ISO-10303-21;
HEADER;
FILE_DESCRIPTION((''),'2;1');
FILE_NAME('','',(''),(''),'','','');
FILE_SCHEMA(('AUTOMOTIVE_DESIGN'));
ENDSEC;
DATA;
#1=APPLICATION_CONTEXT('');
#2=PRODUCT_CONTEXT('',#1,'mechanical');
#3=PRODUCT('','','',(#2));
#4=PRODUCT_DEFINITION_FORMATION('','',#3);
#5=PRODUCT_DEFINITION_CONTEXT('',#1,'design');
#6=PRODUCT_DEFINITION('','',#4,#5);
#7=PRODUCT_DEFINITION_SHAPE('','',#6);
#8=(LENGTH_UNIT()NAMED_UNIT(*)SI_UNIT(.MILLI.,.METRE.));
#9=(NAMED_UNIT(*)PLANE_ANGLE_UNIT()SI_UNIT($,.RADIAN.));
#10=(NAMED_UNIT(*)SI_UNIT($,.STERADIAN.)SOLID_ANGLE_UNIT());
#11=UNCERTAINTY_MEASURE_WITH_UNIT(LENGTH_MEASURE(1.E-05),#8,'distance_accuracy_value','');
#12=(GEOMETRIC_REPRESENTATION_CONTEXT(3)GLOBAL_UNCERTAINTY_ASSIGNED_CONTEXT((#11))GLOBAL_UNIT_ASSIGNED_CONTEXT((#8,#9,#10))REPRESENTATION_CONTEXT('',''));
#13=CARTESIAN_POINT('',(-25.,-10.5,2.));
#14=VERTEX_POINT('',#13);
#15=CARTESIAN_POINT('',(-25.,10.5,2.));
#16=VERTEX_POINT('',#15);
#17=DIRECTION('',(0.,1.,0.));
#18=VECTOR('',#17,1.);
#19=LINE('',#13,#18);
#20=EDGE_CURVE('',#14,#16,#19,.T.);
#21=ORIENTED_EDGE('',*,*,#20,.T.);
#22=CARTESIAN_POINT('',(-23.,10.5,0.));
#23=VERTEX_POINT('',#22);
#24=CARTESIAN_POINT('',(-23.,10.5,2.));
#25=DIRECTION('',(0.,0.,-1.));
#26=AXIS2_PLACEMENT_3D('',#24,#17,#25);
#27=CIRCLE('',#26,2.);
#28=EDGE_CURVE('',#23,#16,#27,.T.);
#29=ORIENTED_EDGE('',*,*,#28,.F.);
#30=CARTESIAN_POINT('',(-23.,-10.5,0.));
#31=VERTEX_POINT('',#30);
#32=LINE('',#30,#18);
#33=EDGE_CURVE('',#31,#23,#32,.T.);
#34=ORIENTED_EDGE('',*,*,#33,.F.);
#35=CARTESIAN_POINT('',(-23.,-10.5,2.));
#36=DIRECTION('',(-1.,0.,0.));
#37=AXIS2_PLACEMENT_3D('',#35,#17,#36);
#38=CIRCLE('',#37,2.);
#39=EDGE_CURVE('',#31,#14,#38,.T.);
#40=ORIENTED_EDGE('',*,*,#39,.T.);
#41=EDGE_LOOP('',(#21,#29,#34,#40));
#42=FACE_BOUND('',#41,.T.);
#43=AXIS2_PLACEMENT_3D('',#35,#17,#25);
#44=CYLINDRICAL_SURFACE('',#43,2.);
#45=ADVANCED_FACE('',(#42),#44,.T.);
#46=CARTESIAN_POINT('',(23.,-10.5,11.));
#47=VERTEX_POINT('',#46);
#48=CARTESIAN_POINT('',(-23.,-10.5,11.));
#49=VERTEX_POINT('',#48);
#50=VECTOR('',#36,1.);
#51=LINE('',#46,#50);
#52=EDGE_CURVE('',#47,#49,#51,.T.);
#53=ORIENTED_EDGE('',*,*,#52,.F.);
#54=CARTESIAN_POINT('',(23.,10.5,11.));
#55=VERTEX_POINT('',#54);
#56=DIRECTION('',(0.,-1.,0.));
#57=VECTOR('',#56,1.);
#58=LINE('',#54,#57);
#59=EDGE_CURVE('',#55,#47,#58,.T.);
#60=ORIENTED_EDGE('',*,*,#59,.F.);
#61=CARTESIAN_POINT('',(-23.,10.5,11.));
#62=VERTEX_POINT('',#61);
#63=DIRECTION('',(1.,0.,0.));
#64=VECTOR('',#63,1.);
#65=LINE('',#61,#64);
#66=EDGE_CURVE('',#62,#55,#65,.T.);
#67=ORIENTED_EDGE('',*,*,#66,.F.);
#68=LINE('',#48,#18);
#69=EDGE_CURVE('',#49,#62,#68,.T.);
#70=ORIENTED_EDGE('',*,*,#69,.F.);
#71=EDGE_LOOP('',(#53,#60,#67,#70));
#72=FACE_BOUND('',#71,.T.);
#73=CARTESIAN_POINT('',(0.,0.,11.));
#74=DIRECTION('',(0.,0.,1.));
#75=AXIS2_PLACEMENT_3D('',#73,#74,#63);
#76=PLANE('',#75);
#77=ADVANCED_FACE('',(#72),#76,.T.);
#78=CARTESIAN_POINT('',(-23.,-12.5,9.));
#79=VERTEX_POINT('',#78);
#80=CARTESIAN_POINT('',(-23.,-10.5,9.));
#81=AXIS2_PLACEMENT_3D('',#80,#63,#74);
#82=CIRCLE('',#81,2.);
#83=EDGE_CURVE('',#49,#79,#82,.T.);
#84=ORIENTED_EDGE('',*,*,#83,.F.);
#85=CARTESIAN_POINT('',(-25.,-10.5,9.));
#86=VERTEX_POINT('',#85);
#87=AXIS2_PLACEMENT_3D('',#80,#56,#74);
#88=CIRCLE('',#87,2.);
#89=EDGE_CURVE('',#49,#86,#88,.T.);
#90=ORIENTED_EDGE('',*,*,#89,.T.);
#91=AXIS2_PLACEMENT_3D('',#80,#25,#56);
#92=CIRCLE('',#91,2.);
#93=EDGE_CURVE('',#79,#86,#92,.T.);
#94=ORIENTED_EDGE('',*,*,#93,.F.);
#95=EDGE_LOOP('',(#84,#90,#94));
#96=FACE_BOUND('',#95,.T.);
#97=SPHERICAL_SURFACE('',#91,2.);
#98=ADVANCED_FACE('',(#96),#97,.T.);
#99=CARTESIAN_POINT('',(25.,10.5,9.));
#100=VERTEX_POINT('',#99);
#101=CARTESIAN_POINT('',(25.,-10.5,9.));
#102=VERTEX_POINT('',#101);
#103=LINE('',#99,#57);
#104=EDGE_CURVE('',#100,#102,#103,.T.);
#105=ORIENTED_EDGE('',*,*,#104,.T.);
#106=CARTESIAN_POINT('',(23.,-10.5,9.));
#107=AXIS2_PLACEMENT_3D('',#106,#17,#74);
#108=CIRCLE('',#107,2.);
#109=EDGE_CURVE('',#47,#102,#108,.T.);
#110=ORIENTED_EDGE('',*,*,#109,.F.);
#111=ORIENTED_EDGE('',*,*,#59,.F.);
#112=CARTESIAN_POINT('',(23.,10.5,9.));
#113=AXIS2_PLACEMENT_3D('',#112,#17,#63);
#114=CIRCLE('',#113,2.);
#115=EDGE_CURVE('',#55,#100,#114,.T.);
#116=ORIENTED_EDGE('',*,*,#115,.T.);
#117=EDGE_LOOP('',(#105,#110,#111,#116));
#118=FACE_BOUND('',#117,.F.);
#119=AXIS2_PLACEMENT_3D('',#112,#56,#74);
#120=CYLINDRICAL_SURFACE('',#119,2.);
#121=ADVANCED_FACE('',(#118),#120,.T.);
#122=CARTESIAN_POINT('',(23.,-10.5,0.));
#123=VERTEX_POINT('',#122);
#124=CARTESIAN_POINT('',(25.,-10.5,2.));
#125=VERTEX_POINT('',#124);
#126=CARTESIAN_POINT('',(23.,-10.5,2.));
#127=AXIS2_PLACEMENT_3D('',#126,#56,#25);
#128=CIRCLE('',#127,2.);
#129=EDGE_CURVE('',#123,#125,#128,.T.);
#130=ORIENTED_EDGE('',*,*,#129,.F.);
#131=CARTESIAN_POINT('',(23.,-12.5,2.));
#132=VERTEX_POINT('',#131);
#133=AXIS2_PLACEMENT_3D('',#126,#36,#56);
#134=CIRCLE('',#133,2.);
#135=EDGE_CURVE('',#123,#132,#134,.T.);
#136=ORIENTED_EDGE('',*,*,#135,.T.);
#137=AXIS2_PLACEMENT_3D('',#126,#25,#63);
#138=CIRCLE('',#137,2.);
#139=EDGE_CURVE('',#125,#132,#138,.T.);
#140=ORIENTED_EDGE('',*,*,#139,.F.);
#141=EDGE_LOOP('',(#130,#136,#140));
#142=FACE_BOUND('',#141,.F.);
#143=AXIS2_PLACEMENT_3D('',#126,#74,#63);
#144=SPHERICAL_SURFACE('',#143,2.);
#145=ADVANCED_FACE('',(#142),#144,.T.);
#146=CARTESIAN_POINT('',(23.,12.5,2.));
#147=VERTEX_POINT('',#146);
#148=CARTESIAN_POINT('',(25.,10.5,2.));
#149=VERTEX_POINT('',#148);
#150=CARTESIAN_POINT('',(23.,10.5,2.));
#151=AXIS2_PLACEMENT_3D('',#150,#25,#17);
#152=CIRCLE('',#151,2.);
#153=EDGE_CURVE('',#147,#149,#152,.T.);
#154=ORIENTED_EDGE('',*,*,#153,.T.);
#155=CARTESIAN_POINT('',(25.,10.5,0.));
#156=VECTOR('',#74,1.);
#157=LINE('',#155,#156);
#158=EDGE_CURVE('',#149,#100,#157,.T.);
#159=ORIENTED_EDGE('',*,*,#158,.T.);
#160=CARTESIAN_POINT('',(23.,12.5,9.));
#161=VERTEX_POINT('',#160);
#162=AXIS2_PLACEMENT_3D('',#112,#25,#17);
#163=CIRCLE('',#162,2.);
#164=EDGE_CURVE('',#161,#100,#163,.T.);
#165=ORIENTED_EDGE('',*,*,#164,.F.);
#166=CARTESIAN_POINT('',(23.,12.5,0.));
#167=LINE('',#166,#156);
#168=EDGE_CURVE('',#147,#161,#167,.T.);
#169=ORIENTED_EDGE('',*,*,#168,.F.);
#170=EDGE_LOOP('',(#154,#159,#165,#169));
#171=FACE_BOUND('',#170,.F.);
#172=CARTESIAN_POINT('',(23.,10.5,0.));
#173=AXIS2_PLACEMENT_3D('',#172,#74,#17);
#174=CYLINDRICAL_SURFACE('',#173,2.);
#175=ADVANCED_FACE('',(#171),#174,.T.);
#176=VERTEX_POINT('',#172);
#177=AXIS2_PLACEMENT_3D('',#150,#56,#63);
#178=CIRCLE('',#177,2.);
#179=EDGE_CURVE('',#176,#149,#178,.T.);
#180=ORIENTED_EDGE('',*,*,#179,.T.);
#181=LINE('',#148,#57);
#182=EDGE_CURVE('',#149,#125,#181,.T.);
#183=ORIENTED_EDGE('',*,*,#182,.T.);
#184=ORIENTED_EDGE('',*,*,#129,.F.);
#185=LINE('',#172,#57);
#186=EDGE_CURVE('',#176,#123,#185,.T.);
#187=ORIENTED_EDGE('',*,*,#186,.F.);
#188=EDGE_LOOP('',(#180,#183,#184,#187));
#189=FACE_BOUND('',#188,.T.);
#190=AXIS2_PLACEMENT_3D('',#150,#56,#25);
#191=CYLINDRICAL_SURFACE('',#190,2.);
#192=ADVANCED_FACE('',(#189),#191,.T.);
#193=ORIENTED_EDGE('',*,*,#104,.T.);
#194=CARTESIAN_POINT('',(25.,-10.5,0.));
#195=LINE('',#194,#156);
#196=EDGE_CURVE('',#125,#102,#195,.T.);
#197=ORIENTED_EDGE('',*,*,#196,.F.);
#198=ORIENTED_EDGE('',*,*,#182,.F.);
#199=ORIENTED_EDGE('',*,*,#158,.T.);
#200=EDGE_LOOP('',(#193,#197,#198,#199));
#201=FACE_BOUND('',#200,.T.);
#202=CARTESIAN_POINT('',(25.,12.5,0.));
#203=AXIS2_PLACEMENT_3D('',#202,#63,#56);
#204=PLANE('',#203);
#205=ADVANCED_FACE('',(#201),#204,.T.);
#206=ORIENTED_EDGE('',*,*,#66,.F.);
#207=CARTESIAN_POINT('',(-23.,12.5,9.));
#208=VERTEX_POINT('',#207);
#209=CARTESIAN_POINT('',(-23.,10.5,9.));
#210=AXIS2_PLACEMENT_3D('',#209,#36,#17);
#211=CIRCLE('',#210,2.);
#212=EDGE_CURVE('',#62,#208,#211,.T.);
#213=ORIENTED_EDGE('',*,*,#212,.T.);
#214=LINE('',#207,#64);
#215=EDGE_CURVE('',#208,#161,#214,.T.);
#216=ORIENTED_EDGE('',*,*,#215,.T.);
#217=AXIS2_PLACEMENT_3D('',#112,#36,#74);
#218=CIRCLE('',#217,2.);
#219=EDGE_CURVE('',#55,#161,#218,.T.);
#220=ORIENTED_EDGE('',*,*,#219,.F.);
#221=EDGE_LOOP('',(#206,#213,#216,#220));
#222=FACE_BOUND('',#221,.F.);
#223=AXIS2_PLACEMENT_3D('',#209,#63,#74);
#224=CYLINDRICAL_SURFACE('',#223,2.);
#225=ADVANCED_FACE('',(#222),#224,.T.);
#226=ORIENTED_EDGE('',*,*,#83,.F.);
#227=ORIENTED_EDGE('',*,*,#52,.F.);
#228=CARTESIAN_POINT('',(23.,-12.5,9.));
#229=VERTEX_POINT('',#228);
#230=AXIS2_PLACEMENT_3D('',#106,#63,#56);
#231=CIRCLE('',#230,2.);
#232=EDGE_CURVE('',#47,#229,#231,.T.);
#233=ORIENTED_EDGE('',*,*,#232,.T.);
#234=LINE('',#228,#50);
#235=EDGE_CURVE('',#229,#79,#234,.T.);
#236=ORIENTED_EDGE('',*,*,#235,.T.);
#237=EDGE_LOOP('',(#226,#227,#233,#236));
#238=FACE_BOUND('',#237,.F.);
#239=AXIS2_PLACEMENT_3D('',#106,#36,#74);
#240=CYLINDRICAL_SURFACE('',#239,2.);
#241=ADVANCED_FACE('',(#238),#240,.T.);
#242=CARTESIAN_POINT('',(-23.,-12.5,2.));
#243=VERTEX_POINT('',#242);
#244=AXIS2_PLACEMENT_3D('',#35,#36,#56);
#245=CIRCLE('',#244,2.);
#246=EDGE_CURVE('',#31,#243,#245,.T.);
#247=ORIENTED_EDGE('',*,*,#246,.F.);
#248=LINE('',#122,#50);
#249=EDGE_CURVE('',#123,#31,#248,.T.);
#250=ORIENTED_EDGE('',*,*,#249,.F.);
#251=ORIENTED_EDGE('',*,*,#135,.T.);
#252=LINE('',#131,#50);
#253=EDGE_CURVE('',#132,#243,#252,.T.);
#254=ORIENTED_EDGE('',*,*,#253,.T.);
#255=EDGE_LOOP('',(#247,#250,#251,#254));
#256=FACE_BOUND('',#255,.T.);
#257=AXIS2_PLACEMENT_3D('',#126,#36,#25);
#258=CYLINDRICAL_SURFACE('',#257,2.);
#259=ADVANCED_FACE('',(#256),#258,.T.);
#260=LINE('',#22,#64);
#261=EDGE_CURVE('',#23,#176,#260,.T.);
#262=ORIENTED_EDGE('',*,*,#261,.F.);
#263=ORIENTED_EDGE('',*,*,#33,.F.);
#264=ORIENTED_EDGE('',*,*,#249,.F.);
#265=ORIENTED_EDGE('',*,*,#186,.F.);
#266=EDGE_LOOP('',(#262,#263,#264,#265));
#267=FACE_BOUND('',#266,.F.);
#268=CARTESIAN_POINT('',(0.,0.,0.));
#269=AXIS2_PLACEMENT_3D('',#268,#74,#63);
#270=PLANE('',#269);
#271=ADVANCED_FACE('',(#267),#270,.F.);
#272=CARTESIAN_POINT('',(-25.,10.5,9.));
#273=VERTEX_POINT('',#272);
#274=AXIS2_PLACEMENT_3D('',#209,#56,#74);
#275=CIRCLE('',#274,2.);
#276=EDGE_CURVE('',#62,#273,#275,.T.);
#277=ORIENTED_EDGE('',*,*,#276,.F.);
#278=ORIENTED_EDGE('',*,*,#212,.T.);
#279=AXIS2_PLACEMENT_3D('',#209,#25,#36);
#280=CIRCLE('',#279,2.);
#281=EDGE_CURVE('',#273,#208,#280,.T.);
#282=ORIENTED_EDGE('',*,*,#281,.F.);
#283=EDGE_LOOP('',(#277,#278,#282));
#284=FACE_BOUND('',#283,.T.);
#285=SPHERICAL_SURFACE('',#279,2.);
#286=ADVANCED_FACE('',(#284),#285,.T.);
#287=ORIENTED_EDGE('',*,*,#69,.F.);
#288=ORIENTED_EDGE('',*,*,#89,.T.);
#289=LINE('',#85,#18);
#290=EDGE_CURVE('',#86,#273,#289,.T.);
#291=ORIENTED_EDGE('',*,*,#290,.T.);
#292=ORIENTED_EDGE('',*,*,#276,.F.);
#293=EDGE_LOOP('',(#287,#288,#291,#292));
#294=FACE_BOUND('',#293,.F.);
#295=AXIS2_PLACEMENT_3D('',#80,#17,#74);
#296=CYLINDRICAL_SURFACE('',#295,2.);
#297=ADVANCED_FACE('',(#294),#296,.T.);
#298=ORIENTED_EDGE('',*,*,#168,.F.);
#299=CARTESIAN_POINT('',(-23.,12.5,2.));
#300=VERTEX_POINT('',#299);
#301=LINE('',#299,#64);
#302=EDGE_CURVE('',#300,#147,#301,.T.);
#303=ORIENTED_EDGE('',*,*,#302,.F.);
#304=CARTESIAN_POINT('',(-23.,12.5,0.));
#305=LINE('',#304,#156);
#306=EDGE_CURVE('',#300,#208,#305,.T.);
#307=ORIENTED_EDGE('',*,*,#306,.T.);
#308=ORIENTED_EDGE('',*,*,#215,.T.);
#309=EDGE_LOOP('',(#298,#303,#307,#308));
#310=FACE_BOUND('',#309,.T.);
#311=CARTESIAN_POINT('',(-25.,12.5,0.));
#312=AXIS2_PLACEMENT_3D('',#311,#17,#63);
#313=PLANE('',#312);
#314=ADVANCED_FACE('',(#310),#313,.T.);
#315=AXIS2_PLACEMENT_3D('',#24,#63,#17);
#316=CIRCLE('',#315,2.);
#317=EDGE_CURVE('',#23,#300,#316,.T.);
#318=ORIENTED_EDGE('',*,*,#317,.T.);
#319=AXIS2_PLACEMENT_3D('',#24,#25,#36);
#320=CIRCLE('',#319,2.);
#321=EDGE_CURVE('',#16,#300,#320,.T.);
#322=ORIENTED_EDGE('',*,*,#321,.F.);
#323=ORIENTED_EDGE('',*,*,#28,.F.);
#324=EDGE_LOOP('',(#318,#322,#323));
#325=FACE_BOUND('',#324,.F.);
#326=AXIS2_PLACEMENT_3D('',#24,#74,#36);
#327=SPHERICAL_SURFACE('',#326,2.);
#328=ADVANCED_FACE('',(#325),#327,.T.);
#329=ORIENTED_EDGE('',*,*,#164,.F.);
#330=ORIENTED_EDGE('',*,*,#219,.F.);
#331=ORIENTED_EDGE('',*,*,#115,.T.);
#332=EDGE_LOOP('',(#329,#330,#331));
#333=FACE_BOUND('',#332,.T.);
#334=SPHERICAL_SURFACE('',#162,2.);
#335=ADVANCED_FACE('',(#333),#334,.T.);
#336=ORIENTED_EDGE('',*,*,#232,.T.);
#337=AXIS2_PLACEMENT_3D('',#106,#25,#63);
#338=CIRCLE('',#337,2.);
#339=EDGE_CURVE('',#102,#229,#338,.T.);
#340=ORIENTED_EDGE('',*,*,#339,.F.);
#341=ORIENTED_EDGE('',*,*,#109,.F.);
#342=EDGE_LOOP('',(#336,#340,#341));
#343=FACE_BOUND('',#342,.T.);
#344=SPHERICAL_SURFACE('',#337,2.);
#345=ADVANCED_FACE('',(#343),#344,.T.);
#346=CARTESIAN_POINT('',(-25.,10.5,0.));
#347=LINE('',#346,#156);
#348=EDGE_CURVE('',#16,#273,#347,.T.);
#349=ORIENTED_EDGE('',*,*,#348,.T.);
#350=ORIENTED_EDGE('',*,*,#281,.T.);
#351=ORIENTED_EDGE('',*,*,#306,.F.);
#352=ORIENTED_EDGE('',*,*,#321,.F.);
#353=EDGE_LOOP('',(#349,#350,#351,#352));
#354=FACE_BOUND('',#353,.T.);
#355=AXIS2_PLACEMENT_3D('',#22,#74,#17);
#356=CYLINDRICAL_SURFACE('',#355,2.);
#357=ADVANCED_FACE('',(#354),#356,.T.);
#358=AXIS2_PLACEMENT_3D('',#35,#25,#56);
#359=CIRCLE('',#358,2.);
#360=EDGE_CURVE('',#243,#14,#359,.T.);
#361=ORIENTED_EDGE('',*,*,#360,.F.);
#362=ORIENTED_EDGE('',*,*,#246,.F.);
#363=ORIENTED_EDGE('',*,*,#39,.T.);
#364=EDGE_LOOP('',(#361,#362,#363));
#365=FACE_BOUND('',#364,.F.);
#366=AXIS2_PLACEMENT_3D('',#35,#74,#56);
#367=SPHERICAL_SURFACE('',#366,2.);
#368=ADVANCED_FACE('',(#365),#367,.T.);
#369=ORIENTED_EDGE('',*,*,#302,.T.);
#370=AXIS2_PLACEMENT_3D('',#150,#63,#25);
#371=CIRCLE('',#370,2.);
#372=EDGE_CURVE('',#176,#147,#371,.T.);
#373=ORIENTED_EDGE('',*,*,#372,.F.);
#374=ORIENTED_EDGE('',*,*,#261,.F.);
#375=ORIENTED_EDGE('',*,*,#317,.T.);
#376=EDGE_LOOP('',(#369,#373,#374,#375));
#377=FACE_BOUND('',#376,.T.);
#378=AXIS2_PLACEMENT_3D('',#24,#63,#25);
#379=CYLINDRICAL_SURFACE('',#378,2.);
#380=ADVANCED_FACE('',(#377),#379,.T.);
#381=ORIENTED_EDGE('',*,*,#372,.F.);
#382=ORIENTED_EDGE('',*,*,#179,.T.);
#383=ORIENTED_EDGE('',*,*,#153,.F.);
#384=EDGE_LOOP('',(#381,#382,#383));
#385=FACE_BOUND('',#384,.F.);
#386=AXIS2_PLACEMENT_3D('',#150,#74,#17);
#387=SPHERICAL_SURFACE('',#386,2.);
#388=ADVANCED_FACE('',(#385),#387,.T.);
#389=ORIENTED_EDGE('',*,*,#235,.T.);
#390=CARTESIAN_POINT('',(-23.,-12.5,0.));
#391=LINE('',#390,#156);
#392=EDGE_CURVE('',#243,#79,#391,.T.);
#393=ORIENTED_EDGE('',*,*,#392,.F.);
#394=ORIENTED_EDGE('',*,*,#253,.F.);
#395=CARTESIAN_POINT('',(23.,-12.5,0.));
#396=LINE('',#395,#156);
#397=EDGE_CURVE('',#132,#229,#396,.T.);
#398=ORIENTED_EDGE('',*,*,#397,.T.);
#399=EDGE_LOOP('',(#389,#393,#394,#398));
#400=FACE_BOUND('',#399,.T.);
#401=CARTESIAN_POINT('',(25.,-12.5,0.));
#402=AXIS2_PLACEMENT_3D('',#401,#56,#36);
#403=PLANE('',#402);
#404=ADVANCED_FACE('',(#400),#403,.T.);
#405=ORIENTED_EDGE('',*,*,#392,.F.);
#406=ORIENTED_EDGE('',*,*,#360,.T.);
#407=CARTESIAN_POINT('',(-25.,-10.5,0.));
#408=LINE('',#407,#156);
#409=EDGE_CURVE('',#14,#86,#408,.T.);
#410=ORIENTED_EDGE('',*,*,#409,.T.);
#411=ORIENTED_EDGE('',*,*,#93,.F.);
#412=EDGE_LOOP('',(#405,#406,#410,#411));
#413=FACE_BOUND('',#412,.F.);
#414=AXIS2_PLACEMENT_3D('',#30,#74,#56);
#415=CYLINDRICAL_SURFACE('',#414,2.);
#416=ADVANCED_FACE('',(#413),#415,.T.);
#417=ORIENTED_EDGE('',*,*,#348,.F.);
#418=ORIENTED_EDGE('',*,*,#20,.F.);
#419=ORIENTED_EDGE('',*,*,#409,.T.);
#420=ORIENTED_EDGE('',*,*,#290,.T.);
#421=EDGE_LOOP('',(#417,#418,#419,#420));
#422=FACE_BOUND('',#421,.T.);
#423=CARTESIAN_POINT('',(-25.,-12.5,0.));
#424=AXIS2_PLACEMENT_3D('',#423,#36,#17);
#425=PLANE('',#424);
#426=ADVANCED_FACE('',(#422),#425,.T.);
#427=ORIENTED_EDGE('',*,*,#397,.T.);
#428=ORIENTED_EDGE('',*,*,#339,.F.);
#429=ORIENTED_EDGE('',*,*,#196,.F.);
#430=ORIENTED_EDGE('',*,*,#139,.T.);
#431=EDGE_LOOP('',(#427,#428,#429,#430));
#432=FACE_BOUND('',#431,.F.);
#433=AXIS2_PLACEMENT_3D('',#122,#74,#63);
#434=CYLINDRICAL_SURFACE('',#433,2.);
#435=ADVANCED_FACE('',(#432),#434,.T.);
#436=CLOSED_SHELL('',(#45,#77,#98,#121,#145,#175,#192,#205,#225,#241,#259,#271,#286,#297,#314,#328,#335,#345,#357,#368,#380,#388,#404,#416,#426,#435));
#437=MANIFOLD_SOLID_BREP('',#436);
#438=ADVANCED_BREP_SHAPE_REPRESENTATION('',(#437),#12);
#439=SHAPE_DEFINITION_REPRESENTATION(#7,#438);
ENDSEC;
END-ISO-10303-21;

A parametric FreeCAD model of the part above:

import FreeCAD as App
import Part
import Sketcher
from FreeCAD import Vector
Q = App.Units.Quantity


def edges_at(feature, points):
    """Names of the edges that pass closest to the given points."""
    edges = feature.Shape.Edges
    near = lambda p: min(range(len(edges)), key=lambda i: edges[i].distToShape(Part.Vertex(*p))[0])
    return sorted({f"Edge{near(p) + 1}" for p in points})


def add_polygon(sketch, points):
    """Adds a closed chain of lines whose ends are joined by coincident constraints."""
    first, n = sketch.GeometryCount, len(points)
    for a, b in zip(points, points[1:] + points[:1]):
        sketch.addGeometry(Part.LineSegment(App.Vector(*a, 0), App.Vector(*b, 0)), False)
    for i in range(n):
        sketch.addConstraint(Sketcher.Constraint("Coincident", first + i, 2, first + (i + 1) % n, 1))

doc = App.newDocument("Part")
body = doc.addObject("PartDesign::Body", "Body")

sketch1 = body.newObject("Sketcher::SketchObject", "Sketch")
sketch1.AttachmentSupport = (doc.getObject("XY_Plane"), [""])
sketch1.MapMode = "FlatFace"
add_polygon(sketch1, [(25, 12), (-25, 12), (-25, -12), (25, -12)])
sketch1.addConstraint([
    Sketcher.Constraint("Horizontal", 0),
    Sketcher.Constraint("Vertical", 1),
    Sketcher.Constraint("Horizontal", 2),
    Sketcher.Constraint("Vertical", 3),
    Sketcher.Constraint("Symmetric", 0, 2, 2, 2, -1, 1),
    Sketcher.Constraint("DistanceX", 0, 2, 0, 1, Q("50 mm")),
    Sketcher.Constraint("DistanceY", 1, 2, 1, 1, Q("25 mm")),
])
pad1 = body.newObject("PartDesign::Pad", "Pad")
pad1.Profile = sketch1
pad1.Length = 11
doc.recompute()

fillet = body.newObject("PartDesign::Fillet", "Fillet")
fillet.Base = (pad1, edges_at(pad1, [
    (25, -12.5, 5.5),
    (25, 12.5, 5.5),
    (-25, 12.5, 5.5),
    (-25, -12.5, 5.5),
]))
fillet.Radius = 2
doc.recompute()

fillet2 = body.newObject("PartDesign::Fillet", "Fillet001")
fillet2.Base = (fillet, edges_at(fillet, [
    (-25, 0, 11),
    (-24.414, 11.914, 11),
    (0, 12.5, 11),
    (24.414, 11.914, 11),
    (25, 0, 11),
    (24.414, -11.914, 11),
    (0, -12.5, 11),
    (-24.414, -11.914, 11),
    (-24.414, -11.914, 0),
    (-25, 0, 0),
    (-24.414, 11.914, 0),
    (0, 12.5, 0),
    (24.414, 11.914, 0),
    (25, 0, 0),
    (24.414, -11.914, 0),
    (0, -12.5, 0),
]))
fillet2.Radius = 2

doc.recompute()
